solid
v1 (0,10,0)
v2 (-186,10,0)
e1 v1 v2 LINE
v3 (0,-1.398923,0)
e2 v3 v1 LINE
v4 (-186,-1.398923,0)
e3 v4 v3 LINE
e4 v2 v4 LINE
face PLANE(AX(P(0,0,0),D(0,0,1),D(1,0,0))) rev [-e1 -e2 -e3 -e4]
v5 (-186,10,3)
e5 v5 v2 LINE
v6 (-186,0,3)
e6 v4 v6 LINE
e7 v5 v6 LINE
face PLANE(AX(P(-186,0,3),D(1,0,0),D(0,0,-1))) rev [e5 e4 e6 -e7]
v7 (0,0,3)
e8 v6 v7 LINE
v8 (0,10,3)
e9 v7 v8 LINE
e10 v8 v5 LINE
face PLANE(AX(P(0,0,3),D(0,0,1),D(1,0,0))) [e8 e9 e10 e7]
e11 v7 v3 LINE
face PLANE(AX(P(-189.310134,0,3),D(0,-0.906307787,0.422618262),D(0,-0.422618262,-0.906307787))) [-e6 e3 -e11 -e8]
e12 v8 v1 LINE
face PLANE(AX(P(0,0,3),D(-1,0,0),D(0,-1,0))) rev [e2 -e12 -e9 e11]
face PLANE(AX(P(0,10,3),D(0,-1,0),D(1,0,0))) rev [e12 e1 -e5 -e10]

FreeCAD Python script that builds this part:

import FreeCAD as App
import Part
import Sketcher
Q = App.Units.Quantity


def add_polygon(sketch, points):
    """Adds a closed chain of lines whose ends are joined by coincident constraints."""
    first, n = sketch.GeometryCount, len(points)
    for a, b in zip(points, points[1:] + points[:1]):
        sketch.addGeometry(Part.LineSegment(App.Vector(*a, 0), App.Vector(*b, 0)), False)
    for i in range(n):
        sketch.addConstraint(Sketcher.Constraint("Coincident", first + i, 2, first + (i + 1) % n, 1))

doc = App.newDocument("Part")
params = doc.addObject("Spreadsheet::Sheet", "Params")
for row, (alias, value) in enumerate([
    ("sketch1_width", "186 mm"),
    ("sketch1_height", "10 mm"),
    ("pad1_length", "3 mm"),
    ("sketch2_height", "3 mm"),
    ("pad2_length", "186 mm"),
], start=1):
    params.set(f"A{row}", alias)
    params.set(f"B{row}", "=" + value)
    params.setAlias(f"B{row}", alias)

body = doc.addObject("PartDesign::Body", "Body")

# Sketch on XY plane
sketch1 = body.newObject("Sketcher::SketchObject", "Sketch")
sketch1.AttachmentSupport = (doc.getObject("XY_Plane"), [""])
sketch1.MapMode = "FlatFace"
add_polygon(sketch1, [(-186, 10), (-186, 0), (0, 0), (0, 10)])  # lines 0-3
sketch1.addConstraint([
    Sketcher.Constraint("Vertical", 0),
    Sketcher.Constraint("Horizontal", 1),
    Sketcher.Constraint("Vertical", 2),
    Sketcher.Constraint("Horizontal", 3),
    Sketcher.Constraint("Coincident", 1, 2, -1, 1),
    Sketcher.Constraint("DistanceX", 1, 1, 1, 2, 186.0),
    Sketcher.Constraint("DistanceY", 0, 2, 0, 1, 10.0),
])
sketch1.setExpression("Constraints[9]", "Params.sketch1_width")
sketch1.setExpression("Constraints[10]", "Params.sketch1_height")
pad1 = body.newObject("PartDesign::Pad", "Pad")
pad1.Profile = sketch1
pad1.setExpression("Length", "Params.pad1_length")

# Sketch on YZ plane
sketch2 = body.newObject("Sketcher::SketchObject", "Sketch001")
sketch2.AttachmentSupport = (doc.getObject("YZ_Plane"), [""])
sketch2.MapMode = "FlatFace"
add_polygon(sketch2, [(0, 3), (-1.4, 0), (0, 0)])  # lines 0-2
sketch2.addConstraint([
    Sketcher.Constraint("Horizontal", 1),
    Sketcher.Constraint("Vertical", 2),
    Sketcher.Constraint("Coincident", 1, 2, -1, 1),
    Sketcher.Constraint("DistanceY", 2, 1, 2, 2, 3.0),
    Sketcher.Constraint("Angle", 0, Q("-115 deg")),
])
sketch2.setExpression("Constraints[6]", "Params.sketch2_height")
pad2 = body.newObject("PartDesign::Pad", "Pad001")
pad2.Profile = sketch2
pad2.setExpression("Length", "Params.pad2_length")
pad2.Reversed = True

doc.recompute()
